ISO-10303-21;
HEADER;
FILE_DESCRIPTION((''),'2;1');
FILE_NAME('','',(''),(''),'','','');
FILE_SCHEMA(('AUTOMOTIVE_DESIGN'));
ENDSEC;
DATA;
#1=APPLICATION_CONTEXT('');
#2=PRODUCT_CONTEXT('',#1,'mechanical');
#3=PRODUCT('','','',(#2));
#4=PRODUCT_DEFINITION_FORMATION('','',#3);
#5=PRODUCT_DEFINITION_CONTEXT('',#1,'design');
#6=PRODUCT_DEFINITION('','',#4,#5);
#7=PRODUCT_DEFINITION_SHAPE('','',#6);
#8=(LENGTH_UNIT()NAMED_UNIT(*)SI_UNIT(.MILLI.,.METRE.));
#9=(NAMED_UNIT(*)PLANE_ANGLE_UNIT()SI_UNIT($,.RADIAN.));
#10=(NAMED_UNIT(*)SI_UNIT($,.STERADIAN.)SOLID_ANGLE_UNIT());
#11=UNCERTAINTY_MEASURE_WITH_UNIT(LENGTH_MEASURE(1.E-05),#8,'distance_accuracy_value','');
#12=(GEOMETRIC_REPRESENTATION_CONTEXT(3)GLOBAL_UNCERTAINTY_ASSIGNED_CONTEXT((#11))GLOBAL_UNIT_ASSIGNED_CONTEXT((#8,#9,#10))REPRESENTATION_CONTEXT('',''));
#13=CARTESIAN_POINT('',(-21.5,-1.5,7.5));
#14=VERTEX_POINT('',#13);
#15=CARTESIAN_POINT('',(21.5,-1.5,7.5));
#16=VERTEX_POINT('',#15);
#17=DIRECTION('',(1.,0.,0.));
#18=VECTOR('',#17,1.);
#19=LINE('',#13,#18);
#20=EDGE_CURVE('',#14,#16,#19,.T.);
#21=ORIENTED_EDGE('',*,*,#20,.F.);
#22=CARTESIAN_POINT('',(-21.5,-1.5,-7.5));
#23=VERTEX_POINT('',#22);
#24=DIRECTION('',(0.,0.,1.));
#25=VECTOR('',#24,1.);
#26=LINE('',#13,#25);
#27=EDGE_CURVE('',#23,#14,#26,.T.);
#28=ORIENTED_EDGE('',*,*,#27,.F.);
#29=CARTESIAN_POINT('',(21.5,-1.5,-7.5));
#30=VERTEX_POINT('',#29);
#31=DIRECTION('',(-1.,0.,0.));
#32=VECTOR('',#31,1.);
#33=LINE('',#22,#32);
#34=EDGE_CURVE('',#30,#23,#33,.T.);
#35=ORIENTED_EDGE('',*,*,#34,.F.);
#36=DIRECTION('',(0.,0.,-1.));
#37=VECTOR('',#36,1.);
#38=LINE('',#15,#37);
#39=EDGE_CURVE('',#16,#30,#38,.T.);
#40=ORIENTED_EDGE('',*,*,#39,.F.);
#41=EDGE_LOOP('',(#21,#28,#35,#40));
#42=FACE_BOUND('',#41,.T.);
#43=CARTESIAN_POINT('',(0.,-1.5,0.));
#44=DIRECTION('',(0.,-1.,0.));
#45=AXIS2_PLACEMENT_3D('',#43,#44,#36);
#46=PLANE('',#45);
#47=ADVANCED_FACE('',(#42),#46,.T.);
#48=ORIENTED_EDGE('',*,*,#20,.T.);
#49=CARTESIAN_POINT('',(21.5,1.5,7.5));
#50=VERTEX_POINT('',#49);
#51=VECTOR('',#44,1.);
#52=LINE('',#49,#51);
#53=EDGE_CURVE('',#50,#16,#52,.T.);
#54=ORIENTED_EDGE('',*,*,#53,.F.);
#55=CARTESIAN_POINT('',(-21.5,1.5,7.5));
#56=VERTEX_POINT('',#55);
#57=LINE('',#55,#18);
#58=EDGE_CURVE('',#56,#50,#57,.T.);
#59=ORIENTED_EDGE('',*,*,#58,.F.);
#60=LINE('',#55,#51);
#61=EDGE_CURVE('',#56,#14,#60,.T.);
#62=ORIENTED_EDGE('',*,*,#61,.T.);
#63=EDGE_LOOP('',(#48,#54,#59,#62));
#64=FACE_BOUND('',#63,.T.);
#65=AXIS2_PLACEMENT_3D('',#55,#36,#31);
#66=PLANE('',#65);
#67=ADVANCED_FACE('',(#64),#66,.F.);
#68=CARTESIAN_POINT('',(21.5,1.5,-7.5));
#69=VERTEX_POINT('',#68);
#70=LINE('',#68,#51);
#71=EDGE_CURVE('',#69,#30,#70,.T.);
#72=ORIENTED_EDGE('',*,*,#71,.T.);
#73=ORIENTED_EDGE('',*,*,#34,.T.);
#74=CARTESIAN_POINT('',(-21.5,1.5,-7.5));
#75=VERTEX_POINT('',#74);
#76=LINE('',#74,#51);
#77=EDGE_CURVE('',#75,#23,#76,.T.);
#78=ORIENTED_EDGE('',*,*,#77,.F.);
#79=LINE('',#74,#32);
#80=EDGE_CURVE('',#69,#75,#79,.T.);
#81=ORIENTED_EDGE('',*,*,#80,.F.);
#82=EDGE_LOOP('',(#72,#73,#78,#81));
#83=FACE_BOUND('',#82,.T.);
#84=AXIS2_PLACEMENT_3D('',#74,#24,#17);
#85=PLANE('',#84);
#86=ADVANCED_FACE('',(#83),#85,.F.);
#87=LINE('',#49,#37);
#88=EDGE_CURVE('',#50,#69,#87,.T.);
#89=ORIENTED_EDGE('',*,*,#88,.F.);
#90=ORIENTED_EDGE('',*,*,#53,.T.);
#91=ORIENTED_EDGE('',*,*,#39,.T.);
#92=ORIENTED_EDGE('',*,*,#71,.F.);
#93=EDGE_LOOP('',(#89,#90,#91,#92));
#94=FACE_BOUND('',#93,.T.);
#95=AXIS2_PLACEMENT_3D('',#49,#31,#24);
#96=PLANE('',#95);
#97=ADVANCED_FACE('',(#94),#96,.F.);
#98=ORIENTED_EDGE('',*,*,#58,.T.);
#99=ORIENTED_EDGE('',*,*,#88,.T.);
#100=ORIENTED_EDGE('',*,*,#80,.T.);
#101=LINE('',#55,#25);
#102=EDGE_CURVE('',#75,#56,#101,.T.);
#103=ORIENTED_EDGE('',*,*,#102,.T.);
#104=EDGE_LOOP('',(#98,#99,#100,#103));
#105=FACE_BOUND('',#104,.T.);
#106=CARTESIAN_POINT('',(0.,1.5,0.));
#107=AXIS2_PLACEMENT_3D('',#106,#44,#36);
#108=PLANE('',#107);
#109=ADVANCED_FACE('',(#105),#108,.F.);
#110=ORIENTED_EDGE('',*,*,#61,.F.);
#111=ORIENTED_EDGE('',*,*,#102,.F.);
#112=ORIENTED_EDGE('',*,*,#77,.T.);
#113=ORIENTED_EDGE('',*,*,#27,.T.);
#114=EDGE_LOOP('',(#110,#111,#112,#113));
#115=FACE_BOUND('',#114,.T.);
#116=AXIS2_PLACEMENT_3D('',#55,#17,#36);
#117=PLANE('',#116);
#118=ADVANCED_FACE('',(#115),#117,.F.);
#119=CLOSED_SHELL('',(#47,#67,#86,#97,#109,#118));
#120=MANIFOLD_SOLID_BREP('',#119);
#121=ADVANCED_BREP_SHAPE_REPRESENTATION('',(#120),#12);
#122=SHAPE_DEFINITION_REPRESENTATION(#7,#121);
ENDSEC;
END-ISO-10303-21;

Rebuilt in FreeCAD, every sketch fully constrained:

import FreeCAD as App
import Part
import Sketcher
from FreeCAD import Vector


def add_polygon(sketch, points):
    """Adds a closed chain of lines whose ends are joined by coincident constraints."""
    first, n = sketch.GeometryCount, len(points)
    for a, b in zip(points, points[1:] + points[:1]):
        sketch.addGeometry(Part.LineSegment(App.Vector(*a, 0), App.Vector(*b, 0)), False)
    for i in range(n):
        sketch.addConstraint(Sketcher.Constraint("Coincident", first + i, 2, first + (i + 1) % n, 1))

doc = App.newDocument("Part")
body = doc.addObject("PartDesign::Body", "Body")

# Sketch on XZ plane
sketch1 = body.newObject("Sketcher::SketchObject", "Sketch")
sketch1.AttachmentSupport = (doc.getObject("XZ_Plane"), [""])
sketch1.MapMode = "FlatFace"
add_polygon(sketch1, [(-22, -8), (-22, 8), (22, 8), (22, -8)])  # lines 0-3
sketch1.addConstraint([
    Sketcher.Constraint("Vertical", 0),
    Sketcher.Constraint("Horizontal", 1),
    Sketcher.Constraint("Vertical", 2),
    Sketcher.Constraint("Horizontal", 3),
    Sketcher.Constraint("Symmetric", 0, 2, 2, 2, -1, 1),
    Sketcher.Constraint("DistanceX", 1, 1, 1, 2, 43.0),
    Sketcher.Constraint("DistanceY", 0, 1, 0, 2, 15.0),
])
pad1 = body.newObject("PartDesign::Pad", "Pad")
pad1.Profile = sketch1
pad1.Length = 3
pad1.Midplane = True

doc.recompute()
